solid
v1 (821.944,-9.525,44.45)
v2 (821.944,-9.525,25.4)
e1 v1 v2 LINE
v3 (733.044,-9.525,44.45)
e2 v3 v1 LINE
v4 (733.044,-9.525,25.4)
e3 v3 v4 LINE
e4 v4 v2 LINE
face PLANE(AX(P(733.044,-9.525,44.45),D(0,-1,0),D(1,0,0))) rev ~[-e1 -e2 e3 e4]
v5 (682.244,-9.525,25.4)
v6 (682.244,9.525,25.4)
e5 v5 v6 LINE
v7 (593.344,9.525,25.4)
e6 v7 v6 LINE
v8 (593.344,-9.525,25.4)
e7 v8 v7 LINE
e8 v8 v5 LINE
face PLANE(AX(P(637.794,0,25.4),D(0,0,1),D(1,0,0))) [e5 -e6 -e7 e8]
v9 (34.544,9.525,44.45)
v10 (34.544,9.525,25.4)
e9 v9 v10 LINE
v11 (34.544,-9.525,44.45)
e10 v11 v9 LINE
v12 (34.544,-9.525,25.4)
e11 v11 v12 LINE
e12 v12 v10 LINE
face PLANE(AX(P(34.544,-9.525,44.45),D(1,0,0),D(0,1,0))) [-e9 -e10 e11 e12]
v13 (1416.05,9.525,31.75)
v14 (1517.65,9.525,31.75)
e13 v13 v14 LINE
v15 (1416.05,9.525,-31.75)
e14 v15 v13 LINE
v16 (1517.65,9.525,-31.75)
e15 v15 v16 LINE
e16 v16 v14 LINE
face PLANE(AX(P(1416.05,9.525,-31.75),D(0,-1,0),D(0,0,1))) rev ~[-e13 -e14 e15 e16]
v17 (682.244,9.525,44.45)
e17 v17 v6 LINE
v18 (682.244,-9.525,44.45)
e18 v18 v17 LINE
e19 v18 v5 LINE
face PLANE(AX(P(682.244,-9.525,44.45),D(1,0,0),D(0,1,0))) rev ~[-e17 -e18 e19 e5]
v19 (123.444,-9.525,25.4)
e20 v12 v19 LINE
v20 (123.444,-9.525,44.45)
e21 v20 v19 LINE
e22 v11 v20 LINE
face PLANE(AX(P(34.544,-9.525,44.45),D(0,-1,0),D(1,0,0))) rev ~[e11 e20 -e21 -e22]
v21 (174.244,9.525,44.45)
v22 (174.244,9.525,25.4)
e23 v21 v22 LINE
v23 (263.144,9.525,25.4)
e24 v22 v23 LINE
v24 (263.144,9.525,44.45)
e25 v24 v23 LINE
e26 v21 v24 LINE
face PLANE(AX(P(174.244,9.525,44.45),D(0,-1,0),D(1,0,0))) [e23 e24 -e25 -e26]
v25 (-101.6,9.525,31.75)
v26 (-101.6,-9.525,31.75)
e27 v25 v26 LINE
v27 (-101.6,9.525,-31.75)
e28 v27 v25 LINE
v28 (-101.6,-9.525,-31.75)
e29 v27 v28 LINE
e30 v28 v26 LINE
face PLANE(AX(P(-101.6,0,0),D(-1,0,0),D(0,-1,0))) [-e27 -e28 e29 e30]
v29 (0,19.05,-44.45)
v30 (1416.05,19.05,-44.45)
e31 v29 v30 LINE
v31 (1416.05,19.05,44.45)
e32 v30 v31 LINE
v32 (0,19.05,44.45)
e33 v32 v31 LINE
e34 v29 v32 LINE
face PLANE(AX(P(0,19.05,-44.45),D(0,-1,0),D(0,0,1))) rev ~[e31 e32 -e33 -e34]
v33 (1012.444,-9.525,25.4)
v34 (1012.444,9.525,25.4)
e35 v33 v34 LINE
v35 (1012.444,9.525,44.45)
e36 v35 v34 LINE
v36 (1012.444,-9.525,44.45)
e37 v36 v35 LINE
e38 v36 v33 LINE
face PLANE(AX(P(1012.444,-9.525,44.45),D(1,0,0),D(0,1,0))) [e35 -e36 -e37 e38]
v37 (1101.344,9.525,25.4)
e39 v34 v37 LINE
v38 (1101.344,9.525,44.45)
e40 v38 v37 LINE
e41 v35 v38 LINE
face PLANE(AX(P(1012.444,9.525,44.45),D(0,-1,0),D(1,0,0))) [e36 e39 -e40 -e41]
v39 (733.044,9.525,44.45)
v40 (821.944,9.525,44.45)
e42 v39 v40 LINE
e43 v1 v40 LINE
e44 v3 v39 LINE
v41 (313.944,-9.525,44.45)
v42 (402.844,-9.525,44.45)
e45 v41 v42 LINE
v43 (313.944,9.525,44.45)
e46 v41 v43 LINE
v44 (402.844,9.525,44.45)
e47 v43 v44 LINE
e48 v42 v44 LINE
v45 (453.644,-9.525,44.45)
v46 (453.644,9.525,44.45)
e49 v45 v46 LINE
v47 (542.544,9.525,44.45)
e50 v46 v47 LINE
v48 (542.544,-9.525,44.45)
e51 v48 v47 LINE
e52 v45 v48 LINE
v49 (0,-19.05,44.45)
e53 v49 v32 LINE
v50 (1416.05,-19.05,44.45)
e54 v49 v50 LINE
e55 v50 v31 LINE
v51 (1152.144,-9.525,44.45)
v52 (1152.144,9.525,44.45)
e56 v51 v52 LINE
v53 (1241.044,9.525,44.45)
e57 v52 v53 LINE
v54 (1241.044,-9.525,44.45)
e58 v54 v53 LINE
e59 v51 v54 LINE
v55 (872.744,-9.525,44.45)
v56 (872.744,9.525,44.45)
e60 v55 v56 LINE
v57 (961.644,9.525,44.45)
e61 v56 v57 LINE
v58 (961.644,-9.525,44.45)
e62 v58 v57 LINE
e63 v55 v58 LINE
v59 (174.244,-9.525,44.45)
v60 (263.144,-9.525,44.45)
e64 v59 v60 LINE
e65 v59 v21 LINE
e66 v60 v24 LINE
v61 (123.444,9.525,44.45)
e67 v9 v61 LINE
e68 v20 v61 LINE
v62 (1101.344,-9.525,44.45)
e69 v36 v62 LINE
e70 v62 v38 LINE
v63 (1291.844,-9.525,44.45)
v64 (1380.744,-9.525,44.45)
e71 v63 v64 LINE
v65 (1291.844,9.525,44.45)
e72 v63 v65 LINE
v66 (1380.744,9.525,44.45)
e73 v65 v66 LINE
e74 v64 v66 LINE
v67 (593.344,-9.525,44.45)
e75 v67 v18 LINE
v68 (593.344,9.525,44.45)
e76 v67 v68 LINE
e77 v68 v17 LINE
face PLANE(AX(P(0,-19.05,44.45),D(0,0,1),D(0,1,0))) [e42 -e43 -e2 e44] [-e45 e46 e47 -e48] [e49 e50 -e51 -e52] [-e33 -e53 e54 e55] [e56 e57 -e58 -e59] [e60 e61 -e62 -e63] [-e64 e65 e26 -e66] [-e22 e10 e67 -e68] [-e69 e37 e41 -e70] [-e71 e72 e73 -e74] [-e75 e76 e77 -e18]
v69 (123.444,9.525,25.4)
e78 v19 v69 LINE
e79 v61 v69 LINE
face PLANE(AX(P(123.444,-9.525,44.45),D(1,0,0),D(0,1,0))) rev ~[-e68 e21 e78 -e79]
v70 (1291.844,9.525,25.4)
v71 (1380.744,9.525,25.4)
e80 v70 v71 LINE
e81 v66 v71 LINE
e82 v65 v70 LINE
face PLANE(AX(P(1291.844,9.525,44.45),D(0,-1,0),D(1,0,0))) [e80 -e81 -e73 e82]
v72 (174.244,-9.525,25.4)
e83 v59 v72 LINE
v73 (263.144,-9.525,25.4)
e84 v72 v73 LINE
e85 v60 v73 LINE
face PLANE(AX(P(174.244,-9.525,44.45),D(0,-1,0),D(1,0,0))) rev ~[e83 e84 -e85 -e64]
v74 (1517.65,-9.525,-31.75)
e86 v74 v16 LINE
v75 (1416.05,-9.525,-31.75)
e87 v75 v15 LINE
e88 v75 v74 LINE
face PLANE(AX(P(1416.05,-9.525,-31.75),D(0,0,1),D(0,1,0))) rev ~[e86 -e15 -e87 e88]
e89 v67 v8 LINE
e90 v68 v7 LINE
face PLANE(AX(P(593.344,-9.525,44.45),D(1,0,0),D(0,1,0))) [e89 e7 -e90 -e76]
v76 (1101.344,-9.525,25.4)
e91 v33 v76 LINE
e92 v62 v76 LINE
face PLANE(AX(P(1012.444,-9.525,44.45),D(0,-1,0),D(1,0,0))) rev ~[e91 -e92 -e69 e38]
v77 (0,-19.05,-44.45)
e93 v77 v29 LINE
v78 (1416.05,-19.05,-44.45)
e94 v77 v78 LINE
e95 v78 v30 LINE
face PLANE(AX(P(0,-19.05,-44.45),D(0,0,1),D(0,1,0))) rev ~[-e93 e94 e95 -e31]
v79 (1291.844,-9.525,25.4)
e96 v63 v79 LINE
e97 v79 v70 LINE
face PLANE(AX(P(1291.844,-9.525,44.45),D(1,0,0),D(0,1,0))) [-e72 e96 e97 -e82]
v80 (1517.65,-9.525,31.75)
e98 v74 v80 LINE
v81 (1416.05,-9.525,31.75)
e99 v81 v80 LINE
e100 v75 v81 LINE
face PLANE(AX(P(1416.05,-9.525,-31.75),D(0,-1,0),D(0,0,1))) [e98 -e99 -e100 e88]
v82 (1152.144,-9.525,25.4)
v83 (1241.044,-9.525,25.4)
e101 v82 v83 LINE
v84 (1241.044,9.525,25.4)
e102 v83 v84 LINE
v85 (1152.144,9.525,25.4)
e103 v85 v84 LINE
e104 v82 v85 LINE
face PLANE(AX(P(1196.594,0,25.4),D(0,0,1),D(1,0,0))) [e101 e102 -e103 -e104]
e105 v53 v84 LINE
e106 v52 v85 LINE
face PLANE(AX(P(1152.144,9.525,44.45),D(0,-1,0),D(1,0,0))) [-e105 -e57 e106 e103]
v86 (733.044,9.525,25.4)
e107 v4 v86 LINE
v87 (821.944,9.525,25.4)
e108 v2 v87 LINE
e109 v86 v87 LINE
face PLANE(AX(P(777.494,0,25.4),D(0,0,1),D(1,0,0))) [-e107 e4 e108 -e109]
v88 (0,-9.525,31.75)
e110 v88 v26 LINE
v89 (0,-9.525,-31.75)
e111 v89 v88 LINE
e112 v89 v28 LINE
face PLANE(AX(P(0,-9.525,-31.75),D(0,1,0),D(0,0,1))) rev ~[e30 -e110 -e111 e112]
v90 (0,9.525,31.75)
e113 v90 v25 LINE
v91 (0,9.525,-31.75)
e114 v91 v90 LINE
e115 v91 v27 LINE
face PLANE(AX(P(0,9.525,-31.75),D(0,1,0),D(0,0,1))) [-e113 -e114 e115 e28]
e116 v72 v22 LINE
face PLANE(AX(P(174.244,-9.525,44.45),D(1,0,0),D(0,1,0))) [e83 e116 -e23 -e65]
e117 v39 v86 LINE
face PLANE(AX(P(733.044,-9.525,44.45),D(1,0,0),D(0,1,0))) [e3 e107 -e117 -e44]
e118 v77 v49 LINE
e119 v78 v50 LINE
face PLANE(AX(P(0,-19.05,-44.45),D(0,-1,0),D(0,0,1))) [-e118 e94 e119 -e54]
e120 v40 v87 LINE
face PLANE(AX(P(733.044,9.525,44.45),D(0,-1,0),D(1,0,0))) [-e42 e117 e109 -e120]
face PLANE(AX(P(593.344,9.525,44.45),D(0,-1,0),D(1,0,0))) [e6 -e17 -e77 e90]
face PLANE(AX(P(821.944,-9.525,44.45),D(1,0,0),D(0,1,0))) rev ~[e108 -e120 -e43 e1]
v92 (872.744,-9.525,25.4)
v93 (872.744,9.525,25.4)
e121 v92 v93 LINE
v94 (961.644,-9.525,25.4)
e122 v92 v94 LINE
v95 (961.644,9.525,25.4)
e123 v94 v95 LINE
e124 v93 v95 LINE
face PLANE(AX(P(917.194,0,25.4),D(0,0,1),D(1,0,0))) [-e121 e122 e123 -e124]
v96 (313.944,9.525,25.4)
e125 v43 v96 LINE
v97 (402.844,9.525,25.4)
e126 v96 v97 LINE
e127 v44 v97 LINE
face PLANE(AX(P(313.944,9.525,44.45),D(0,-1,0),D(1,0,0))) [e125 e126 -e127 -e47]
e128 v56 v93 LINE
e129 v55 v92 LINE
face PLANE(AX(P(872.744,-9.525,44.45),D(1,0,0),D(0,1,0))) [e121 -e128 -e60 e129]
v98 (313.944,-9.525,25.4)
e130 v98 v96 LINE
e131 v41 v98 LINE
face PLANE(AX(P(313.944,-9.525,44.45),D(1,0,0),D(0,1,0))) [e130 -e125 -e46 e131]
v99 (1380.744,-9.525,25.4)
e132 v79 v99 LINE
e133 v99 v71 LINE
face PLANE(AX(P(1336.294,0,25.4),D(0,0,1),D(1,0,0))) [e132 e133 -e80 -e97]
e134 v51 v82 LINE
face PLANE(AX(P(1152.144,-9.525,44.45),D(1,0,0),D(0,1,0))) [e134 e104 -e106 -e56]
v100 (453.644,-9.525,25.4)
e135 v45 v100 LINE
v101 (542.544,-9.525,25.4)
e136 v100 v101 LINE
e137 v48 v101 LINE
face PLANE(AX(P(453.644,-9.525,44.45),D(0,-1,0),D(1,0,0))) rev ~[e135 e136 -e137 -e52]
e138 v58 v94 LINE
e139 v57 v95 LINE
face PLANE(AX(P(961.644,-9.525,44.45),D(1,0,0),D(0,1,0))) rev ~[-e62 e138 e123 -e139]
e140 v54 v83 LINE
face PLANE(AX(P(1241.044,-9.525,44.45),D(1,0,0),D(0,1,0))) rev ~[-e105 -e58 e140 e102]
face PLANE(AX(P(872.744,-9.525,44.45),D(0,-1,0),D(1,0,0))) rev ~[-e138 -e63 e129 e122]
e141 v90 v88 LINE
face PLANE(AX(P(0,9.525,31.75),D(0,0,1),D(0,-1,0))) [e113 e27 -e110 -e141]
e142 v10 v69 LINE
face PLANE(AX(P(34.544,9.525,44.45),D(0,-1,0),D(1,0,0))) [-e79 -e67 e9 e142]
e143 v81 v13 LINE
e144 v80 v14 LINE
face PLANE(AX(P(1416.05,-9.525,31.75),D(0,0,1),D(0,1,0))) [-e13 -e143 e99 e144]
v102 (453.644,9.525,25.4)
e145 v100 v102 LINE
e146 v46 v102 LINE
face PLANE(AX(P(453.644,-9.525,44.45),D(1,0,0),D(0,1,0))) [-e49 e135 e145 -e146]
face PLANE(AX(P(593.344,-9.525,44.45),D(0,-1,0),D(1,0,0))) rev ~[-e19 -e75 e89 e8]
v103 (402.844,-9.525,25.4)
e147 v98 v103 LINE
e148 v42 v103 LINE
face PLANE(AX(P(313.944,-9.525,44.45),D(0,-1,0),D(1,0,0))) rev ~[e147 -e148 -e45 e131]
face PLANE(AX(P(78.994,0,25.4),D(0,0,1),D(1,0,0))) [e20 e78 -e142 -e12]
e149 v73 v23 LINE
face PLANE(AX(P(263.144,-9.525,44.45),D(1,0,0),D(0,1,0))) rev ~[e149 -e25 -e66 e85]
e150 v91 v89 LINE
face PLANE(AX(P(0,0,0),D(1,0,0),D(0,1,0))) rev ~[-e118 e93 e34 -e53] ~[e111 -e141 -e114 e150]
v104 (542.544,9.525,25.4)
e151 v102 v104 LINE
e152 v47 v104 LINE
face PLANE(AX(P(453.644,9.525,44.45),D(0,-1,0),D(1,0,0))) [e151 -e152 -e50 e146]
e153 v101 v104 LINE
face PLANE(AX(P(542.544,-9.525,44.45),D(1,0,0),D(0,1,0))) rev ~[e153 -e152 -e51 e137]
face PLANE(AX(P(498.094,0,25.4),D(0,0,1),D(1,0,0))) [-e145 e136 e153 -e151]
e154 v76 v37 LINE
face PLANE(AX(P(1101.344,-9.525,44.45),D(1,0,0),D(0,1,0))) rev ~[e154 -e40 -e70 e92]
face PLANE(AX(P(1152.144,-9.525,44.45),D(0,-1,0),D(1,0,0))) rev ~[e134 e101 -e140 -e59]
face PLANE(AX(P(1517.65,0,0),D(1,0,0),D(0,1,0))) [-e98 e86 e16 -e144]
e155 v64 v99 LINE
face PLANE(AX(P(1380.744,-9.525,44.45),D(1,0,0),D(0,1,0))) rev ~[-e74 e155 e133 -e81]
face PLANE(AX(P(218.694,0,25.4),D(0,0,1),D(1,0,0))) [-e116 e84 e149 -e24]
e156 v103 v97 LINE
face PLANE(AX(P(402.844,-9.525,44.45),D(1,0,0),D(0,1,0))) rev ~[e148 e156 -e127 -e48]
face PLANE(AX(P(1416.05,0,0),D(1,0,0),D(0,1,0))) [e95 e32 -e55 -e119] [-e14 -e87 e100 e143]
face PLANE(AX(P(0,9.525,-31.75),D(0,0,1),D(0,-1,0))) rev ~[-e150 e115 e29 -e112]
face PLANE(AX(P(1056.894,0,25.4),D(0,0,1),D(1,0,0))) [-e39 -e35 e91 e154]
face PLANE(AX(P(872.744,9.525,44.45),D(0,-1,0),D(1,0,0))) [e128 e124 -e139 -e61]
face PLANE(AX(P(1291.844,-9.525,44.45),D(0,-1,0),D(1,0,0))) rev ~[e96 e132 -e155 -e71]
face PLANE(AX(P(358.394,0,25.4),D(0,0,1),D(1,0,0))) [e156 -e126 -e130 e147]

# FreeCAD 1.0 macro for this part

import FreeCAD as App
import Part
import Sketcher
Q = App.Units.Quantity


def add_polygon(sketch, points):
    """Adds a closed chain of lines whose ends are joined by coincident constraints."""
    first, n = sketch.GeometryCount, len(points)
    for a, b in zip(points, points[1:] + points[:1]):
        sketch.addGeometry(Part.LineSegment(App.Vector(*a, 0), App.Vector(*b, 0)), False)
    for i in range(n):
        sketch.addConstraint(Sketcher.Constraint("Coincident", first + i, 2, first + (i + 1) % n, 1))

doc = App.newDocument("Part")
body = doc.addObject("PartDesign::Body", "Body")

# Sketch on YZ plane
sketch1 = body.newObject("Sketcher::SketchObject", "Sketch")
sketch1.AttachmentSupport = (doc.getObject("YZ_Plane"), [""])
sketch1.MapMode = "FlatFace"
add_polygon(sketch1, [(-19, 44), (-19, -44), (19, -44), (19, 44)])  # lines 0-3
sketch1.addConstraint([
    Sketcher.Constraint("Vertical", 0),
    Sketcher.Constraint("Horizontal", 1),
    Sketcher.Constraint("Vertical", 2),
    Sketcher.Constraint("Horizontal", 3),
    Sketcher.Constraint("Symmetric", 0, 2, 2, 2, -1, 1),
    Sketcher.Constraint("DistanceX", 1, 1, 1, 2, Q("1.5 in")),
    Sketcher.Constraint("DistanceY", 0, 2, 0, 1, Q("3.5 in")),
])
pad1 = body.newObject("PartDesign::Pad", "Pad")
pad1.Profile = sketch1
pad1.Length = Q("55.75 in")

# Sketch on YZ plane
sketch2 = body.newObject("Sketcher::SketchObject", "Sketch001")
sketch2.AttachmentSupport = (doc.getObject("YZ_Plane"), [""])
sketch2.MapMode = "FlatFace"
sketch2.AttachmentOffset = App.Placement(App.Vector(0, 0, 55.75 * 25.4), App.Rotation())
add_polygon(sketch2, [(-10, 32), (-10, -32), (10, -32), (10, 32)])  # lines 0-3
sketch2.addConstraint([
    Sketcher.Constraint("Vertical", 0),
    Sketcher.Constraint("Horizontal", 1),
    Sketcher.Constraint("Vertical", 2),
    Sketcher.Constraint("Horizontal", 3),
    Sketcher.Constraint("Symmetric", 0, 2, 2, 2, -1, 1),
    Sketcher.Constraint("DistanceY", 0, 2, 0, 1, Q("2.5 in")),
    Sketcher.Constraint("DistanceX", 1, 1, 1, 2, Q("0.75 in")),
])
pad2 = body.newObject("PartDesign::Pad", "Pad001")
pad2.Profile = sketch2
pad2.Length = Q("4 in")

# Sketch on YZ plane
sketch3 = body.newObject("Sketcher::SketchObject", "Sketch002")
sketch3.AttachmentSupport = (doc.getObject("YZ_Plane"), [""])
sketch3.MapMode = "FlatFace"
add_polygon(sketch3, [(10, 32), (10, -32), (-10, -32), (-10, 32)])  # lines 0-3
sketch3.addConstraint([
    Sketcher.Constraint("Vertical", 0),
    Sketcher.Constraint("Horizontal", 1),
    Sketcher.Constraint("Vertical", 2),
    Sketcher.Constraint("Horizontal", 3),
    Sketcher.Constraint("Symmetric", 0, 2, 2, 2, -1, 1),
    Sketcher.Constraint("DistanceY", 0, 2, 0, 1, Q("2.5 in")),
    Sketcher.Constraint("DistanceX", 1, 2, 1, 1, Q("0.75 in")),
])
pad3 = body.newObject("PartDesign::Pad", "Pad002")
pad3.Profile = sketch3
pad3.Length = Q("4 in")
pad3.Reversed = True

# Sketch on XY plane
sketch4 = body.newObject("Sketcher::SketchObject", "Sketch003")
sketch4.AttachmentSupport = (doc.getObject("XY_Plane"), [""])
sketch4.MapMode = "FlatFace"
sketch4.AttachmentOffset = App.Placement(App.Vector(0, 0, 1.75 * 25.4), App.Rotation())
add_polygon(sketch4, [(35, 10), (35, -10), (123, -10), (123, 10)])  # lines 0-3
add_polygon(sketch4, [(174, 10), (174, -10), (263, -10), (263, 10)])  # lines 4-7
add_polygon(sketch4, [(314, 10), (314, -10), (403, -10), (403, 10)])  # lines 8-11
add_polygon(sketch4, [(454, 10), (454, -10), (543, -10), (543, 10)])  # lines 12-15
add_polygon(sketch4, [(593, 10), (593, -10), (682, -10), (682, 10)])  # lines 16-19
add_polygon(sketch4, [(733, 10), (733, -10), (822, -10), (822, 10)])  # lines 20-23
add_polygon(sketch4, [(873, 10), (873, -10), (962, -10), (962, 10)])  # lines 24-27
add_polygon(sketch4, [(1012, 10), (1012, -10), (1101, -10), (1101, 10)])  # lines 28-31
add_polygon(sketch4, [(1152, 10), (1152, -10), (1241, -10), (1241, 10)])  # lines 32-35
add_polygon(sketch4, [(1292, 10), (1292, -10), (1381, -10), (1381, 10)])  # lines 36-39
sketch4.addConstraint([
    Sketcher.Constraint("Vertical", 0),
    Sketcher.Constraint("Horizontal", 1),
    Sketcher.Constraint("Vertical", 2),
    Sketcher.Constraint("Horizontal", 3),
    Sketcher.Constraint("Vertical", 4),
    Sketcher.Constraint("Horizontal", 5),
    Sketcher.Constraint("Vertical", 6),
    Sketcher.Constraint("Horizontal", 7),
    Sketcher.Constraint("Vertical", 8),
    Sketcher.Constraint("Horizontal", 9),
    Sketcher.Constraint("Vertical", 10),
    Sketcher.Constraint("Horizontal", 11),
    Sketcher.Constraint("Vertical", 12),
    Sketcher.Constraint("Horizontal", 13),
    Sketcher.Constraint("Vertical", 14),
    Sketcher.Constraint("Horizontal", 15),
    Sketcher.Constraint("Vertical", 16),
    Sketcher.Constraint("Horizontal", 17),
    Sketcher.Constraint("Vertical", 18),
    Sketcher.Constraint("Horizontal", 19),
    Sketcher.Constraint("Vertical", 20),
    Sketcher.Constraint("Horizontal", 21),
    Sketcher.Constraint("Vertical", 22),
    Sketcher.Constraint("Horizontal", 23),
    Sketcher.Constraint("Vertical", 24),
    Sketcher.Constraint("Horizontal", 25),
    Sketcher.Constraint("Vertical", 26),
    Sketcher.Constraint("Horizontal", 27),
    Sketcher.Constraint("Vertical", 28),
    Sketcher.Constraint("Horizontal", 29),
    Sketcher.Constraint("Vertical", 30),
    Sketcher.Constraint("Horizontal", 31),
    Sketcher.Constraint("Vertical", 32),
    Sketcher.Constraint("Horizontal", 33),
    Sketcher.Constraint("Vertical", 34),
    Sketcher.Constraint("Horizontal", 35),
    Sketcher.Constraint("Vertical", 36),
    Sketcher.Constraint("Horizontal", 37),
    Sketcher.Constraint("Vertical", 38),
    Sketcher.Constraint("Horizontal", 39),
    Sketcher.Constraint("Horizontal", 1, 2, 4, 2),
    Sketcher.Constraint("Horizontal", 3, 2, 6, 2),
    Sketcher.Constraint("Horizontal", 5, 2, 8, 2),
    Sketcher.Constraint("Horizontal", 7, 2, 10, 2),
    Sketcher.Constraint("Horizontal", 9, 2, 12, 2),
    Sketcher.Constraint("Horizontal", 11, 2, 14, 2),
    Sketcher.Constraint("Horizontal", 13, 2, 16, 2),
    Sketcher.Constraint("Horizontal", 15, 2, 18, 2),
    Sketcher.Constraint("Horizontal", 17, 2, 20, 2),
    Sketcher.Constraint("Horizontal", 19, 2, 22, 2),
    Sketcher.Constraint("Horizontal", 21, 2, 24, 2),
    Sketcher.Constraint("Horizontal", 23, 2, 26, 2),
    Sketcher.Constraint("Horizontal", 25, 2, 28, 2),
    Sketcher.Constraint("Horizontal", 27, 2, 30, 2),
    Sketcher.Constraint("Horizontal", 29, 2, 32, 2),
    Sketcher.Constraint("Horizontal", 31, 2, 34, 2),
    Sketcher.Constraint("Horizontal", 33, 2, 36, 2),
    Sketcher.Constraint("Horizontal", 35, 2, 38, 2),
    Sketcher.Constraint("Equal", 3, 5),
    Sketcher.Constraint("Equal", 7, 9),
    Sketcher.Constraint("Equal", 11, 13),
    Sketcher.Constraint("Equal", 15, 17),
    Sketcher.Constraint("Equal", 19, 21),
    Sketcher.Constraint("Equal", 23, 25),
    Sketcher.Constraint("Equal", 27, 29),
    Sketcher.Constraint("Equal", 31, 33),
    Sketcher.Constraint("Equal", 35, 37),
    Sketcher.Constraint("DistanceX", 1, 1, 1, 2, Q("3.5 in")),
    Sketcher.Constraint("DistanceX", 1, 2, 4, 2, Q("2 in")),
    Sketcher.Constraint("DistanceX", 5, 2, 8, 2, Q("2 in")),
    Sketcher.Constraint("DistanceX", 9, 2, 12, 2, Q("2 in")),
    Sketcher.Constraint("DistanceX", 13, 2, 16, 2, Q("2 in")),
    Sketcher.Constraint("DistanceX", 17, 2, 20, 2, Q("2 in")),
    Sketcher.Constraint("DistanceX", 21, 2, 24, 2, Q("2 in")),
    Sketcher.Constraint("DistanceX", 25, 2, 28, 2, Q("2 in")),
    Sketcher.Constraint("DistanceX", 29, 2, 32, 2, Q("2 in")),
    Sketcher.Constraint("DistanceX", 33, 2, 36, 2, Q("2 in")),
    Sketcher.Constraint("DistanceY", 0, 2, 0, 1, Q("0.75 in")),
    Sketcher.Constraint("DistanceX", -1, 1, 0, 2, Q("1.36 in")),
    Sketcher.Constraint("DistanceY", 0, 2, -1, 1, Q("0.375 in")),
])
pocket1 = body.newObject("PartDesign::Pocket", "Pocket")
pocket1.Profile = sketch4
pocket1.Length = Q("0.75 in")

doc.recompute()
